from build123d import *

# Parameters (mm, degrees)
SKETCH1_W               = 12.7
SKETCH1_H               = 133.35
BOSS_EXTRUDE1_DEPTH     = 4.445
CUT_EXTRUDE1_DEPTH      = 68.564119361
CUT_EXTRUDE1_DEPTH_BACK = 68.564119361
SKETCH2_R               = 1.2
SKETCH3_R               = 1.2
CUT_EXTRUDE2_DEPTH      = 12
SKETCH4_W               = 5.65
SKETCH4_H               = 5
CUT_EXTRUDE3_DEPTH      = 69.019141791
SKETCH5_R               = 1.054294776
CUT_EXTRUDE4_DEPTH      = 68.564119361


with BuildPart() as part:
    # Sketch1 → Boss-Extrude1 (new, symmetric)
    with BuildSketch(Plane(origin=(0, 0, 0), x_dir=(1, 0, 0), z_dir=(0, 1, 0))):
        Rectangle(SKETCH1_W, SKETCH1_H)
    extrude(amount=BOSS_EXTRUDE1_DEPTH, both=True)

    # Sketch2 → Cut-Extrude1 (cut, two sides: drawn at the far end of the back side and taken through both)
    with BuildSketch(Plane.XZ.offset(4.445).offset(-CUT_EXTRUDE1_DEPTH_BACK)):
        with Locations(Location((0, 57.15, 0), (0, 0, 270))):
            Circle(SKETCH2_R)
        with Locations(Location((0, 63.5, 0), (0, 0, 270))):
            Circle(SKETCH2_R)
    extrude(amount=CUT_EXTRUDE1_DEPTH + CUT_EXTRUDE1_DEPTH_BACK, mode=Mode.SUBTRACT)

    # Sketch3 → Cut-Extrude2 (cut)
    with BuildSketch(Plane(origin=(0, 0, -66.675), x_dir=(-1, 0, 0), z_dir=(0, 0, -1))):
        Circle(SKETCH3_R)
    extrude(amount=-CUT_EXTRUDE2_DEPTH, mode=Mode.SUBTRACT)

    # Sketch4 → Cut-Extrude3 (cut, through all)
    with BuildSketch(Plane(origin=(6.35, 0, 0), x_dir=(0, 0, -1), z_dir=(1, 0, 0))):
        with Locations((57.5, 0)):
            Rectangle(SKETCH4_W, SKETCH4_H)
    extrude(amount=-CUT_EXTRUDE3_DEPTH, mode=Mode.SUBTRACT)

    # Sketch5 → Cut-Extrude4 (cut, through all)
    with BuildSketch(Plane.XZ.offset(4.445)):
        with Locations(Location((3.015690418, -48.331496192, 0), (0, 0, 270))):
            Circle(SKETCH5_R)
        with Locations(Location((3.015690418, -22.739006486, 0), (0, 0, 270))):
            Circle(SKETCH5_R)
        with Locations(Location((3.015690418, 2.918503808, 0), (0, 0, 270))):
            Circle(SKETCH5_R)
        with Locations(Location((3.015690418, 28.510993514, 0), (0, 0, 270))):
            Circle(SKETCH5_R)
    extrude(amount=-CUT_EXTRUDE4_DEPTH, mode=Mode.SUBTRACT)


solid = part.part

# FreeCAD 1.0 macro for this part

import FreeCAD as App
import Part
import Sketcher
from FreeCAD import Vector
Q = App.Units.Quantity

doc = App.newDocument("Part")
params = doc.addObject("Spreadsheet::Sheet", "Params")
for row, (alias, value) in enumerate([
    ("sketch1_width", "12.7 mm"),
    ("sketch1_height", "133.35 mm"),
    ("pad1_length", "8.89 mm"),
    ("sketch2_diameter", "2.4 mm"),
    ("sketch3_diameter", "2.4 mm"),
    ("pocket2_length", "12 mm"),
    ("sketch4_width", "5 mm"),
    ("sketch4_height", "5.65 mm"),
], start=1):
    params.set(f"A{row}", alias)
    params.set(f"B{row}", "=" + value)
    params.setAlias(f"B{row}", alias)

body = doc.addObject("PartDesign::Body", "Body")

sketch1 = doc.addObject("Sketcher::SketchObject", "Sketch")
body.addObject(sketch1)
sketch1.AttachmentSupport = (doc.XZ_Plane, [""])
sketch1.MapMode = "FlatFace"
sketch1.addGeometry(Part.LineSegment(Vector(-6.35, -66.675, 0), Vector(-6.35, 66.675, 0)), False)
sketch1.addGeometry(Part.LineSegment(Vector(-6.35, 66.675, 0), Vector(6.35, 66.675, 0)), False)
sketch1.addGeometry(Part.LineSegment(Vector(6.35, 66.675, 0), Vector(6.35, -66.675, 0)), False)
sketch1.addGeometry(Part.LineSegment(Vector(6.35, -66.675, 0), Vector(-6.35, -66.675, 0)), False)
sketch1.addConstraint(Sketcher.Constraint("Coincident", 0, 2, 1, 1))
sketch1.addConstraint(Sketcher.Constraint("Coincident", 1, 2, 2, 1))
sketch1.addConstraint(Sketcher.Constraint("Coincident", 2, 2, 3, 1))
sketch1.addConstraint(Sketcher.Constraint("Coincident", 3, 2, 0, 1))
sketch1.addConstraint(Sketcher.Constraint("Vertical", 0))
sketch1.addConstraint(Sketcher.Constraint("Horizontal", 1))
sketch1.addConstraint(Sketcher.Constraint("Vertical", 2))
sketch1.addConstraint(Sketcher.Constraint("Horizontal", 3))
sketch1.addConstraint(Sketcher.Constraint("Symmetric", 0, 2, 2, 2, -1, 1))
sketch1.addConstraint(Sketcher.Constraint("DistanceX", 1, 1, 1, 2, Q("12.7 mm")))
sketch1.addConstraint(Sketcher.Constraint("DistanceY", 0, 1, 0, 2, Q("133.35 mm")))
sketch1.setExpression("Constraints[9]", "Params.sketch1_width")
sketch1.setExpression("Constraints[10]", "Params.sketch1_height")
pad1 = doc.addObject("PartDesign::Pad", "Pad")
body.addObject(pad1)
pad1.Profile = sketch1
pad1.setExpression("Length", "Params.pad1_length")
pad1.Midplane = True

sketch2 = doc.addObject("Sketcher::SketchObject", "Sketch001")
body.addObject(sketch2)
sketch2.AttachmentSupport = (doc.XZ_Plane, [""])
sketch2.MapMode = "FlatFace"
sketch2.AttachmentOffset = App.Placement(Vector(0, 0, 4.445), App.Rotation())
sketch2.addGeometry(Part.Circle(Vector(0, 57.15, 0), Vector(0, 0, 1), 1.2), False)
sketch2.addGeometry(Part.Circle(Vector(0, 63.5, 0), Vector(0, 0, 1), 1.2), False)
sketch2.addConstraint(Sketcher.Constraint("Equal", 0, 1))
sketch2.addConstraint(Sketcher.Constraint("PointOnObject", 0, 3, -2))
sketch2.addConstraint(Sketcher.Constraint("PointOnObject", 1, 3, -2))
sketch2.addConstraint(Sketcher.Constraint("Diameter", 0, Q("2.4 mm")))
sketch2.addConstraint(Sketcher.Constraint("DistanceY", -1, 1, 1, 3, Q("63.5 mm")))
sketch2.addConstraint(Sketcher.Constraint("DistanceY", -1, 1, 0, 3, Q("57.15 mm")))
sketch2.setExpression("Constraints[3]", "Params.sketch2_diameter")
pocket1 = doc.addObject("PartDesign::Pocket", "Pocket")
body.addObject(pocket1)
pocket1.Profile = sketch2
pocket1.Type = "ThroughAll"
pocket1.Midplane = True

sketch3 = doc.addObject("Sketcher::SketchObject", "Sketch002")
body.addObject(sketch3)
sketch3.AttachmentSupport = (doc.XY_Plane, [""])
sketch3.MapMode = "FlatFace"
sketch3.AttachmentOffset = App.Placement(Vector(0, 0, -66.675), App.Rotation())
sketch3.addGeometry(Part.Circle(Vector(0, 0, 0), Vector(0, 0, 1), 1.2), False)
sketch3.addConstraint(Sketcher.Constraint("Coincident", 0, 3, -1, 1))
sketch3.addConstraint(Sketcher.Constraint("Diameter", 0, Q("2.4 mm")))
sketch3.setExpression("Constraints[1]", "Params.sketch3_diameter")
pocket2 = doc.addObject("PartDesign::Pocket", "Pocket001")
body.addObject(pocket2)
pocket2.Profile = sketch3
pocket2.setExpression("Length", "Params.pocket2_length")
pocket2.Reversed = True

sketch4 = doc.addObject("Sketcher::SketchObject", "Sketch003")
body.addObject(sketch4)
sketch4.AttachmentSupport = (doc.YZ_Plane, [""])
sketch4.MapMode = "FlatFace"
sketch4.AttachmentOffset = App.Placement(Vector(0, 0, 6.35), App.Rotation())
sketch4.addGeometry(Part.LineSegment(Vector(2.5, -54.675, 0), Vector(-2.5, -54.675, 0)), False)
sketch4.addGeometry(Part.LineSegment(Vector(-2.5, -54.675, 0), Vector(-2.5, -60.325, 0)), False)
sketch4.addGeometry(Part.LineSegment(Vector(-2.5, -60.325, 0), Vector(2.5, -60.325, 0)), False)
sketch4.addGeometry(Part.LineSegment(Vector(2.5, -60.325, 0), Vector(2.5, -54.675, 0)), False)
sketch4.addConstraint(Sketcher.Constraint("Coincident", 0, 2, 1, 1))
sketch4.addConstraint(Sketcher.Constraint("Coincident", 1, 2, 2, 1))
sketch4.addConstraint(Sketcher.Constraint("Coincident", 2, 2, 3, 1))
sketch4.addConstraint(Sketcher.Constraint("Coincident", 3, 2, 0, 1))
sketch4.addConstraint(Sketcher.Constraint("Horizontal", 0))
sketch4.addConstraint(Sketcher.Constraint("Vertical", 1))
sketch4.addConstraint(Sketcher.Constraint("Horizontal", 2))
sketch4.addConstraint(Sketcher.Constraint("Vertical", 3))
sketch4.addConstraint(Sketcher.Constraint("DistanceX", 0, 2, 0, 1, Q("5 mm")))
sketch4.addConstraint(Sketcher.Constraint("DistanceY", 1, 2, 1, 1, Q("5.65 mm")))
sketch4.addConstraint(Sketcher.Constraint("DistanceX", 0, 2, -1, 1, Q("2.5 mm")))
sketch4.addConstraint(Sketcher.Constraint("DistanceY", 0, 2, -1, 1, Q("54.675 mm")))
sketch4.setExpression("Constraints[8]", "Params.sketch4_width")
sketch4.setExpression("Constraints[9]", "Params.sketch4_height")
pocket3 = doc.addObject("PartDesign::Pocket", "Pocket002")
body.addObject(pocket3)
pocket3.Profile = sketch4
pocket3.Type = "ThroughAll"

sketch5 = doc.addObject("Sketcher::SketchObject", "Sketch004")
body.addObject(sketch5)
sketch5.AttachmentSupport = (doc.XZ_Plane, [""])
sketch5.MapMode = "FlatFace"
sketch5.AttachmentOffset = App.Placement(Vector(0, 0, 4.445), App.Rotation())
sketch5.addGeometry(Part.Circle(Vector(3.01569, -48.331496, 0), Vector(0, 0, 1), 1.054295), False)
sketch5.addGeometry(Part.Circle(Vector(3.01569, -22.739006, 0), Vector(0, 0, 1), 1.054295), False)
sketch5.addGeometry(Part.Circle(Vector(3.01569, 2.918504, 0), Vector(0, 0, 1), 1.054295), False)
sketch5.addGeometry(Part.Circle(Vector(3.01569, 28.510994, 0), Vector(0, 0, 1), 1.054295), False)
sketch5.addConstraint(Sketcher.Constraint("Equal", 0, 1))
sketch5.addConstraint(Sketcher.Constraint("Equal", 1, 2))
sketch5.addConstraint(Sketcher.Constraint("Equal", 2, 3))
sketch5.addConstraint(Sketcher.Constraint("Vertical", 0, 3, 1, 3))
sketch5.addConstraint(Sketcher.Constraint("Vertical", 1, 3, 2, 3))
sketch5.addConstraint(Sketcher.Constraint("Vertical", 2, 3, 3, 3))
sketch5.addConstraint(Sketcher.Constraint("Diameter", 0, Q("2.10859 mm")))
sketch5.addConstraint(Sketcher.Constraint("DistanceY", 0, 3, 2, 3, Q("51.25 mm")))
sketch5.addConstraint(Sketcher.Constraint("DistanceY", 1, 3, 3, 3, Q("51.25 mm")))
sketch5.addConstraint(Sketcher.Constraint("DistanceX", -1, 1, 0, 3, Q("3.01569 mm")))
sketch5.addConstraint(Sketcher.Constraint("DistanceY", 0, 3, 1, 3, Q("25.59249 mm")))
sketch5.addConstraint(Sketcher.Constraint("DistanceY", 0, 3, -1, 1, Q("48.331496 mm")))
pocket4 = doc.addObject("PartDesign::Pocket", "Pocket003")
body.addObject(pocket4)
pocket4.Profile = sketch5
pocket4.Type = "ThroughAll"

doc.recompute()
